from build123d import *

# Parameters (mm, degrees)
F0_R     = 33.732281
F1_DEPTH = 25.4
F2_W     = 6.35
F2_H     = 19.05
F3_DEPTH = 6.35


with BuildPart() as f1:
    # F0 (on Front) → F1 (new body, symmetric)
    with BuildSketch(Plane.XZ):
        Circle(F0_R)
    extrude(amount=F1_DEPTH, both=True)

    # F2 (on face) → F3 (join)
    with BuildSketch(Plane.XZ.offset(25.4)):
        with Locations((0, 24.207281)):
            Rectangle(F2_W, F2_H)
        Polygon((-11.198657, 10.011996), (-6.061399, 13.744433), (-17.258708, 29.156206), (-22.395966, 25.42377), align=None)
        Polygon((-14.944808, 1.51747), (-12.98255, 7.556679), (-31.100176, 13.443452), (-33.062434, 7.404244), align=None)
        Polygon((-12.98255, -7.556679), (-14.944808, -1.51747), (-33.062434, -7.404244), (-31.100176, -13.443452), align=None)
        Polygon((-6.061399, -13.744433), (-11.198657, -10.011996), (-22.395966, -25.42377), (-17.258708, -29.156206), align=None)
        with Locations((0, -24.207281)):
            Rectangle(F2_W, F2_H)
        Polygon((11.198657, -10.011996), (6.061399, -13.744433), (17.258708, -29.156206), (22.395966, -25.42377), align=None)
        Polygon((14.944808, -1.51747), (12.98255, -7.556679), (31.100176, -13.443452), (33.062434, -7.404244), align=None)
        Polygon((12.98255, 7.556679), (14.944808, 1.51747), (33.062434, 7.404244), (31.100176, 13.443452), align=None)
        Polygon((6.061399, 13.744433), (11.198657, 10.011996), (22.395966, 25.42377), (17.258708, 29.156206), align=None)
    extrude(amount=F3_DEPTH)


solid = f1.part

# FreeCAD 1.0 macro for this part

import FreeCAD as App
import Part
import Sketcher
Q = App.Units.Quantity

doc = App.newDocument("Part")
body = doc.addObject("PartDesign::Body", "Body")

# Sketch on XZ plane
sketch1 = doc.addObject("Sketcher::SketchObject", "Sketch")
body.addObject(sketch1)
sketch1.AttachmentSupport = (doc.XZ_Plane, [""])
sketch1.MapMode = "FlatFace"
sketch1.addGeometry(Part.Circle(App.Vector(0, 0, 0), App.Vector(0, 0, 1), 34), False)
sketch1.addConstraint(Sketcher.Constraint("Coincident", 0, 3, -1, 1))
sketch1.addConstraint(Sketcher.Constraint("Diameter", 0, Q("67.464562 mm")))
pad1 = doc.addObject("PartDesign::Pad", "Pad")
body.addObject(pad1)
pad1.Profile = sketch1
pad1.Length = Q("2 in")
pad1.Midplane = True

# Sketch on XZ plane
sketch2 = doc.addObject("Sketcher::SketchObject", "Sketch001")
body.addObject(sketch2)
sketch2.AttachmentSupport = (doc.XZ_Plane, [""])
sketch2.MapMode = "FlatFace"
sketch2.AttachmentOffset = App.Placement(App.Vector(0, 0, 1 * 25.4), App.Rotation())
sketch2.addGeometry(Part.LineSegment(App.Vector(-3, 34, 0), App.Vector(-3, 15, 0)), False)
sketch2.addGeometry(Part.LineSegment(App.Vector(-3, 15, 0), App.Vector(3, 15, 0)), False)
sketch2.addGeometry(Part.LineSegment(App.Vector(3, 15, 0), App.Vector(3, 34, 0)), False)
sketch2.addGeometry(Part.LineSegment(App.Vector(3, 34, 0), App.Vector(-3, 34, 0)), False)
sketch2.addGeometry(Part.LineSegment(App.Vector(-11, 10, 0), App.Vector(-6, 14, 0)), False)
sketch2.addGeometry(Part.LineSegment(App.Vector(-6, 14, 0), App.Vector(-17, 29, 0)), False)
sketch2.addGeometry(Part.LineSegment(App.Vector(-17, 29, 0), App.Vector(-22, 25, 0)), False)
sketch2.addGeometry(Part.LineSegment(App.Vector(-22, 25, 0), App.Vector(-11, 10, 0)), False)
sketch2.addGeometry(Part.LineSegment(App.Vector(-15, 2, 0), App.Vector(-13, 8, 0)), False)
sketch2.addGeometry(Part.LineSegment(App.Vector(-13, 8, 0), App.Vector(-31, 13, 0)), False)
sketch2.addGeometry(Part.LineSegment(App.Vector(-31, 13, 0), App.Vector(-33, 7, 0)), False)
sketch2.addGeometry(Part.LineSegment(App.Vector(-33, 7, 0), App.Vector(-15, 2, 0)), False)
sketch2.addGeometry(Part.LineSegment(App.Vector(-13, -8, 0), App.Vector(-15, -2, 0)), False)
sketch2.addGeometry(Part.LineSegment(App.Vector(-15, -2, 0), App.Vector(-33, -7, 0)), False)
sketch2.addGeometry(Part.LineSegment(App.Vector(-33, -7, 0), App.Vector(-31, -13, 0)), False)
sketch2.addGeometry(Part.LineSegment(App.Vector(-31, -13, 0), App.Vector(-13, -8, 0)), False)
sketch2.addGeometry(Part.LineSegment(App.Vector(-6, -14, 0), App.Vector(-11, -10, 0)), False)
sketch2.addGeometry(Part.LineSegment(App.Vector(-11, -10, 0), App.Vector(-22, -25, 0)), False)
sketch2.addGeometry(Part.LineSegment(App.Vector(-22, -25, 0), App.Vector(-17, -29, 0)), False)
sketch2.addGeometry(Part.LineSegment(App.Vector(-17, -29, 0), App.Vector(-6, -14, 0)), False)
sketch2.addGeometry(Part.LineSegment(App.Vector(-3, -15, 0), App.Vector(-3, -34, 0)), False)
sketch2.addGeometry(Part.LineSegment(App.Vector(-3, -34, 0), App.Vector(3, -34, 0)), False)
sketch2.addGeometry(Part.LineSegment(App.Vector(3, -34, 0), App.Vector(3, -15, 0)), False)
sketch2.addGeometry(Part.LineSegment(App.Vector(3, -15, 0), App.Vector(-3, -15, 0)), False)
sketch2.addGeometry(Part.LineSegment(App.Vector(11, -10, 0), App.Vector(6, -14, 0)), False)
sketch2.addGeometry(Part.LineSegment(App.Vector(6, -14, 0), App.Vector(17, -29, 0)), False)
sketch2.addGeometry(Part.LineSegment(App.Vector(17, -29, 0), App.Vector(22, -25, 0)), False)
sketch2.addGeometry(Part.LineSegment(App.Vector(22, -25, 0), App.Vector(11, -10, 0)), False)
sketch2.addGeometry(Part.LineSegment(App.Vector(15, -2, 0), App.Vector(13, -8, 0)), False)
sketch2.addGeometry(Part.LineSegment(App.Vector(13, -8, 0), App.Vector(31, -13, 0)), False)
sketch2.addGeometry(Part.LineSegment(App.Vector(31, -13, 0), App.Vector(33, -7, 0)), False)
sketch2.addGeometry(Part.LineSegment(App.Vector(33, -7, 0), App.Vector(15, -2, 0)), False)
sketch2.addGeometry(Part.LineSegment(App.Vector(13, 8, 0), App.Vector(15, 2, 0)), False)
sketch2.addGeometry(Part.LineSegment(App.Vector(15, 2, 0), App.Vector(33, 7, 0)), False)
sketch2.addGeometry(Part.LineSegment(App.Vector(33, 7, 0), App.Vector(31, 13, 0)), False)
sketch2.addGeometry(Part.LineSegment(App.Vector(31, 13, 0), App.Vector(13, 8, 0)), False)
sketch2.addGeometry(Part.LineSegment(App.Vector(6, 14, 0), App.Vector(11, 10, 0)), False)
sketch2.addGeometry(Part.LineSegment(App.Vector(11, 10, 0), App.Vector(22, 25, 0)), False)
sketch2.addGeometry(Part.LineSegment(App.Vector(22, 25, 0), App.Vector(17, 29, 0)), False)
sketch2.addGeometry(Part.LineSegment(App.Vector(17, 29, 0), App.Vector(6, 14, 0)), False)
sketch2.addConstraint(Sketcher.Constraint("Coincident", 0, 2, 1, 1))
sketch2.addConstraint(Sketcher.Constraint("Coincident", 1, 2, 2, 1))
sketch2.addConstraint(Sketcher.Constraint("Coincident", 2, 2, 3, 1))
sketch2.addConstraint(Sketcher.Constraint("Coincident", 3, 2, 0, 1))
sketch2.addConstraint(Sketcher.Constraint("Coincident", 4, 2, 5, 1))
sketch2.addConstraint(Sketcher.Constraint("Coincident", 5, 2, 6, 1))
sketch2.addConstraint(Sketcher.Constraint("Coincident", 6, 2, 7, 1))
sketch2.addConstraint(Sketcher.Constraint("Coincident", 7, 2, 4, 1))
sketch2.addConstraint(Sketcher.Constraint("Coincident", 8, 2, 9, 1))
sketch2.addConstraint(Sketcher.Constraint("Coincident", 9, 2, 10, 1))
sketch2.addConstraint(Sketcher.Constraint("Coincident", 10, 2, 11, 1))
sketch2.addConstraint(Sketcher.Constraint("Coincident", 11, 2, 8, 1))
sketch2.addConstraint(Sketcher.Constraint("Coincident", 12, 2, 13, 1))
sketch2.addConstraint(Sketcher.Constraint("Coincident", 13, 2, 14, 1))
sketch2.addConstraint(Sketcher.Constraint("Coincident", 14, 2, 15, 1))
sketch2.addConstraint(Sketcher.Constraint("Coincident", 15, 2, 12, 1))
sketch2.addConstraint(Sketcher.Constraint("Coincident", 16, 2, 17, 1))
sketch2.addConstraint(Sketcher.Constraint("Coincident", 17, 2, 18, 1))
sketch2.addConstraint(Sketcher.Constraint("Coincident", 18, 2, 19, 1))
sketch2.addConstraint(Sketcher.Constraint("Coincident", 19, 2, 16, 1))
sketch2.addConstraint(Sketcher.Constraint("Coincident", 20, 2, 21, 1))
sketch2.addConstraint(Sketcher.Constraint("Coincident", 21, 2, 22, 1))
sketch2.addConstraint(Sketcher.Constraint("Coincident", 22, 2, 23, 1))
sketch2.addConstraint(Sketcher.Constraint("Coincident", 23, 2, 20, 1))
sketch2.addConstraint(Sketcher.Constraint("Coincident", 24, 2, 25, 1))
sketch2.addConstraint(Sketcher.Constraint("Coincident", 25, 2, 26, 1))
sketch2.addConstraint(Sketcher.Constraint("Coincident", 26, 2, 27, 1))
sketch2.addConstraint(Sketcher.Constraint("Coincident", 27, 2, 24, 1))
sketch2.addConstraint(Sketcher.Constraint("Coincident", 28, 2, 29, 1))
sketch2.addConstraint(Sketcher.Constraint("Coincident", 29, 2, 30, 1))
sketch2.addConstraint(Sketcher.Constraint("Coincident", 30, 2, 31, 1))
sketch2.addConstraint(Sketcher.Constraint("Coincident", 31, 2, 28, 1))
sketch2.addConstraint(Sketcher.Constraint("Coincident", 32, 2, 33, 1))
sketch2.addConstraint(Sketcher.Constraint("Coincident", 33, 2, 34, 1))
sketch2.addConstraint(Sketcher.Constraint("Coincident", 34, 2, 35, 1))
sketch2.addConstraint(Sketcher.Constraint("Coincident", 35, 2, 32, 1))
sketch2.addConstraint(Sketcher.Constraint("Coincident", 36, 2, 37, 1))
sketch2.addConstraint(Sketcher.Constraint("Coincident", 37, 2, 38, 1))
sketch2.addConstraint(Sketcher.Constraint("Coincident", 38, 2, 39, 1))
sketch2.addConstraint(Sketcher.Constraint("Coincident", 39, 2, 36, 1))
sketch2.addConstraint(Sketcher.Constraint("Vertical", 0))
sketch2.addConstraint(Sketcher.Constraint("Horizontal", 1))
sketch2.addConstraint(Sketcher.Constraint("Vertical", 2))
sketch2.addConstraint(Sketcher.Constraint("Horizontal", 3))
sketch2.addConstraint(Sketcher.Constraint("Vertical", 20))
sketch2.addConstraint(Sketcher.Constraint("Horizontal", 21))
sketch2.addConstraint(Sketcher.Constraint("Vertical", 22))
sketch2.addConstraint(Sketcher.Constraint("Horizontal", 23))
sketch2.addConstraint(Sketcher.Constraint("Symmetric", 2, 2, 20, 2, -1, 1))
sketch2.addConstraint(Sketcher.Constraint("Symmetric", 0, 2, 22, 2, -1, 1))
sketch2.addConstraint(Sketcher.Constraint("Symmetric", 4, 2, 24, 2, -1, 1))
sketch2.addConstraint(Sketcher.Constraint("Symmetric", 5, 2, 25, 2, -1, 1))
sketch2.addConstraint(Sketcher.Constraint("Symmetric", 6, 2, 26, 2, -1, 1))
sketch2.addConstraint(Sketcher.Constraint("Symmetric", 7, 2, 27, 2, -1, 1))
sketch2.addConstraint(Sketcher.Constraint("Symmetric", 8, 2, 28, 2, -1, 1))
sketch2.addConstraint(Sketcher.Constraint("Symmetric", 9, 2, 29, 2, -1, 1))
sketch2.addConstraint(Sketcher.Constraint("Symmetric", 10, 2, 30, 2, -1, 1))
sketch2.addConstraint(Sketcher.Constraint("Symmetric", 11, 2, 31, 2, -1, 1))
sketch2.addConstraint(Sketcher.Constraint("Symmetric", 12, 2, 32, 2, -1, 1))
sketch2.addConstraint(Sketcher.Constraint("Symmetric", 13, 2, 33, 2, -1, 1))
sketch2.addConstraint(Sketcher.Constraint("Symmetric", 14, 2, 34, 2, -1, 1))
sketch2.addConstraint(Sketcher.Constraint("Symmetric", 15, 2, 35, 2, -1, 1))
sketch2.addConstraint(Sketcher.Constraint("Symmetric", 16, 2, 36, 2, -1, 1))
sketch2.addConstraint(Sketcher.Constraint("Symmetric", 17, 2, 37, 2, -1, 1))
sketch2.addConstraint(Sketcher.Constraint("Symmetric", 18, 2, 38, 2, -1, 1))
sketch2.addConstraint(Sketcher.Constraint("Symmetric", 19, 2, 39, 2, -1, 1))
sketch2.addConstraint(Sketcher.Constraint("Symmetric", 19, 2, 24, 2, -2))
sketch2.addConstraint(Sketcher.Constraint("Symmetric", 18, 2, 25, 2, -2))
sketch2.addConstraint(Sketcher.Constraint("Symmetric", 17, 2, 26, 2, -2))
sketch2.addConstraint(Sketcher.Constraint("Symmetric", 16, 2, 27, 2, -2))
sketch2.addConstraint(Sketcher.Constraint("Symmetric", 15, 2, 28, 2, -2))
sketch2.addConstraint(Sketcher.Constraint("Symmetric", 14, 2, 29, 2, -2))
sketch2.addConstraint(Sketcher.Constraint("Symmetric", 13, 2, 30, 2, -2))
sketch2.addConstraint(Sketcher.Constraint("Symmetric", 12, 2, 31, 2, -2))
sketch2.addConstraint(Sketcher.Constraint("Perpendicular", 4, 5))
sketch2.addConstraint(Sketcher.Constraint("Perpendicular", 5, 6))
sketch2.addConstraint(Sketcher.Constraint("Perpendicular", 6, 7))
sketch2.addConstraint(Sketcher.Constraint("Perpendicular", 8, 9))
sketch2.addConstraint(Sketcher.Constraint("Perpendicular", 9, 10))
sketch2.addConstraint(Sketcher.Constraint("Perpendicular", 10, 11))
sketch2.addConstraint(Sketcher.Constraint("Vertical", 3, 2, 20, 2))
sketch2.addConstraint(Sketcher.Constraint("Equal", 6, 8))
sketch2.addConstraint(Sketcher.Constraint("Equal", 7, 9))
sketch2.addConstraint(Sketcher.Constraint("Angle", 4, Q("36.000004 deg")))
sketch2.addConstraint(Sketcher.Constraint("Angle", 8, Q("72 deg")))
sketch2.addConstraint(Sketcher.Constraint("DistanceX", 1, 1, 1, 2, Q("0.25 in")))
sketch2.addConstraint(Sketcher.Constraint("DistanceY", 0, 2, 0, 1, Q("0.75 in")))
sketch2.addConstraint(Sketcher.Constraint("Distance", 4, Q("0.25 in")))
sketch2.addConstraint(Sketcher.Constraint("Distance", 5, Q("0.75 in")))
sketch2.addConstraint(Sketcher.Constraint("DistanceX", 4, 2, -1, 1, Q("6.061399 mm")))
sketch2.addConstraint(Sketcher.Constraint("DistanceY", 8, 2, 0, 2, Q("7.125602 mm")))
sketch2.addConstraint(Sketcher.Constraint("DistanceY", 17, 2, 12, 2, Q("23.9063 mm")))
sketch2.addConstraint(Sketcher.Constraint("DistanceY", -1, 1, 0, 2, Q("14.682281 mm")))
sketch2.addConstraint(Sketcher.Constraint("DistanceX", 8, 2, -1, 1, Q("12.98255 mm")))
pad2 = doc.addObject("PartDesign::Pad", "Pad001")
body.addObject(pad2)
pad2.Profile = sketch2
pad2.Length = Q("0.25 in")

doc.recompute()
